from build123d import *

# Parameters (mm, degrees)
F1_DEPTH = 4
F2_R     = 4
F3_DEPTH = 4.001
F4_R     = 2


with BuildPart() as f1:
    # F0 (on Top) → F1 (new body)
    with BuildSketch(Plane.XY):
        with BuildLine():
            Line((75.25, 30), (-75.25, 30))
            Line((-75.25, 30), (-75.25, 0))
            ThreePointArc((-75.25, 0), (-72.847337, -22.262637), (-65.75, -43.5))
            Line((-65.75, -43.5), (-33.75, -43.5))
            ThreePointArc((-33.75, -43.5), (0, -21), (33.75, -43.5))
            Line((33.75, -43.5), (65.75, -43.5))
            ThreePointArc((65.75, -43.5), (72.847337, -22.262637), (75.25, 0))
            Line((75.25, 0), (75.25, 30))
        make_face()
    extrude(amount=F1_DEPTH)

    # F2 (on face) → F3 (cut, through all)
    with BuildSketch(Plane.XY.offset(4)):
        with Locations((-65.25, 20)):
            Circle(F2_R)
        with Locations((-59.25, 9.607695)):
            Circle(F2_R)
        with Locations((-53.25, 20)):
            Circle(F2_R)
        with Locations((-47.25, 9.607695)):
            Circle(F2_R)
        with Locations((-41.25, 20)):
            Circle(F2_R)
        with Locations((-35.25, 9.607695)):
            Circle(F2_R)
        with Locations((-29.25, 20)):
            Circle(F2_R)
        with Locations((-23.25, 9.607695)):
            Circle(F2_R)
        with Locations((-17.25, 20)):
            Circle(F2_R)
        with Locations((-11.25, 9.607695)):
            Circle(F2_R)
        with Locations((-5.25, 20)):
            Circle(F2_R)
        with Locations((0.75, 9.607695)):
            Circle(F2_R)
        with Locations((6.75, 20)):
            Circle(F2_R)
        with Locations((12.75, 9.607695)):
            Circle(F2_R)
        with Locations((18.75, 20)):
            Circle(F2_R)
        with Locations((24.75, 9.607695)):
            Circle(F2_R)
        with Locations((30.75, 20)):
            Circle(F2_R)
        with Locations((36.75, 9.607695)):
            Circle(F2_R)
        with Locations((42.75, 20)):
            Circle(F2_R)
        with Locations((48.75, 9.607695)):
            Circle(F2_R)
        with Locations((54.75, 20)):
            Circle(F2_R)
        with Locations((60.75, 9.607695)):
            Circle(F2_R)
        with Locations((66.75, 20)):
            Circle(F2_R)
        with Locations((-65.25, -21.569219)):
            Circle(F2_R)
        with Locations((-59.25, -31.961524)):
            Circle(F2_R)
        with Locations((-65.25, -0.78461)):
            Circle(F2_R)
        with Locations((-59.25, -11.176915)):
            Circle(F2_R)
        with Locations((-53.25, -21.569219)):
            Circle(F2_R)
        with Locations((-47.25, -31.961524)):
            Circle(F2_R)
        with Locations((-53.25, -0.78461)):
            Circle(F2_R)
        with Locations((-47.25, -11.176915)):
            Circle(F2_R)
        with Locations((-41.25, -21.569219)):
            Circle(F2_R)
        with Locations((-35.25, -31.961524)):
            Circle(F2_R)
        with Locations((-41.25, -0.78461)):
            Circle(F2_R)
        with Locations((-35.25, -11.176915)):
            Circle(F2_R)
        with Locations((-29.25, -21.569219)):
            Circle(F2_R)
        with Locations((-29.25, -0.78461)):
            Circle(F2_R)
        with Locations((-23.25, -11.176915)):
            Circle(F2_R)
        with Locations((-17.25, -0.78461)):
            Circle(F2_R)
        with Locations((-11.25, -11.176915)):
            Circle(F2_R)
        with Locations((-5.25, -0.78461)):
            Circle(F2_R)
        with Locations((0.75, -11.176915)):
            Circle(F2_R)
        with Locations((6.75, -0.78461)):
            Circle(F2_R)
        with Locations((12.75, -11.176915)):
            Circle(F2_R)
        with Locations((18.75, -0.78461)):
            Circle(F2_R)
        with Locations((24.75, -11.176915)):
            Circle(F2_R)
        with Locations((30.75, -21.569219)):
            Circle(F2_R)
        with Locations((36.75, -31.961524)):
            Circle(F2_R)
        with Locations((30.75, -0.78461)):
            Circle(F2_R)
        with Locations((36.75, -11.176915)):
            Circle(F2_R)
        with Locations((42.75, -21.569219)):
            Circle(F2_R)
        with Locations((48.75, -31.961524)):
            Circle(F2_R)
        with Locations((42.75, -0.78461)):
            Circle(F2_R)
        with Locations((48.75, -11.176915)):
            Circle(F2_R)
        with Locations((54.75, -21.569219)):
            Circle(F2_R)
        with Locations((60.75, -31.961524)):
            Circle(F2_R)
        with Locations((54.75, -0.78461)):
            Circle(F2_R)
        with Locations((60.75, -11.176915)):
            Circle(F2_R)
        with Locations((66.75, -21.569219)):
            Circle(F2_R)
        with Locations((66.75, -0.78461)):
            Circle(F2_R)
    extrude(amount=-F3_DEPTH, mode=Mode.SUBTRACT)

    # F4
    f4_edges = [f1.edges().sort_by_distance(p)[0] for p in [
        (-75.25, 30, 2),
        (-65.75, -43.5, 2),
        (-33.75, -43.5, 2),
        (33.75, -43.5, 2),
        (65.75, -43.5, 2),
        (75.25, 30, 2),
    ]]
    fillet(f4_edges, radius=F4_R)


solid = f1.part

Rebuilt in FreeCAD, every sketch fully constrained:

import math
import FreeCAD as App
import Part
import Sketcher

V = App.Vector


def edges_at(feature, points):
    """Names of the edges that pass closest to the given points."""
    edges = feature.Shape.Edges
    near = lambda p: min(range(len(edges)), key=lambda i: edges[i].distToShape(Part.Vertex(*p))[0])
    return sorted({f"Edge{near(p) + 1}" for p in points})

doc = App.newDocument("Part")
body = doc.addObject("PartDesign::Body", "Body")

sketch1 = body.newObject("Sketcher::SketchObject", "Sketch")
sketch1.AttachmentSupport = (doc.getObject("XY_Plane"), [""])
sketch1.MapMode = "FlatFace"
sketch1.addGeometry([
    Part.LineSegment(V(75, 30, 0), V(-75, 30, 0)),
    Part.LineSegment(V(-75, 30, 0), V(-75, 0, 0)),
    Part.ArcOfCircle(Part.Circle(V(29, 0, 0), V(0, 0, 1), 104), math.radians(-180), math.radians(-155)),
    Part.LineSegment(V(-66, -44, 0), V(-34, -44, 0)),
    Part.ArcOfCircle(Part.Circle(V(0, -58, 0), V(0, 0, 1), 37), math.radians(23), math.radians(157)),
    Part.LineSegment(V(34, -44, 0), V(66, -44, 0)),
    Part.ArcOfCircle(Part.Circle(V(-29, 0, 0), V(0, 0, 1), 104), math.radians(-25), math.radians(0)),
    Part.LineSegment(V(75, 0, 0), V(75, 30, 0)),
], False)
sketch1.addConstraint([
    Sketcher.Constraint("Coincident", 0, 2, 1, 1),
    Sketcher.Constraint("Tangent", 1, 2, 2, 1),
    Sketcher.Constraint("Coincident", 2, 2, 3, 1),
    Sketcher.Constraint("Coincident", 3, 2, 4, 2),
    Sketcher.Constraint("Coincident", 4, 1, 5, 1),
    Sketcher.Constraint("Coincident", 5, 2, 6, 1),
    Sketcher.Constraint("Tangent", 6, 2, 7, 1),
    Sketcher.Constraint("Coincident", 7, 2, 0, 1),
    Sketcher.Constraint("Horizontal", 0),
    Sketcher.Constraint("Vertical", 1),
    Sketcher.Constraint("Horizontal", 3),
    Sketcher.Constraint("Horizontal", 5),
    Sketcher.Constraint("Vertical", 7),
    Sketcher.Constraint("Equal", 2, 6),
    Sketcher.Constraint("Symmetric", 2, 3, 6, 3, -1, 1),
    Sketcher.Constraint("Symmetric", 3, 2, 4, 1, -2),
    Sketcher.Constraint("PointOnObject", 2, 3, -1),
    Sketcher.Constraint("DistanceX", 3, 1, 3, 2, 32.0),
    Sketcher.Constraint("DistanceY", 1, 2, 1, 1, 30.0),
    Sketcher.Constraint("DistanceX", 0, 2, 0, 1, 150.5),
    Sketcher.Constraint("DistanceY", 2, 2, -1, 1, 43.5),
    Sketcher.Constraint("Radius", 4, 36.5625),
    Sketcher.Constraint("DistanceX", 1, 2, 3, 2, 41.5),
])
pad1 = body.newObject("PartDesign::Pad", "Pad")
pad1.Profile = sketch1
pad1.Length = 4

sketch2 = body.newObject("Sketcher::SketchObject", "Sketch001")
sketch2.AttachmentSupport = (doc.getObject("XY_Plane"), [""])
sketch2.MapMode = "FlatFace"
sketch2.AttachmentOffset = App.Placement(V(0, 0, 4), App.Rotation())
sketch2.addGeometry([
    Part.Circle(V(-65.2, 20, 0), V(0, 0, 1), 4),
    Part.Circle(V(-59.2, 9.6, 0), V(0, 0, 1), 4),
    Part.Circle(V(-53.2, 20, 0), V(0, 0, 1), 4),
    Part.Circle(V(-47.2, 9.6, 0), V(0, 0, 1), 4),
    Part.Circle(V(-41.2, 20, 0), V(0, 0, 1), 4),
    Part.Circle(V(-35.2, 9.6, 0), V(0, 0, 1), 4),
    Part.Circle(V(-29.2, 20, 0), V(0, 0, 1), 4),
    Part.Circle(V(-23.2, 9.6, 0), V(0, 0, 1), 4),
    Part.Circle(V(-17.2, 20, 0), V(0, 0, 1), 4),
    Part.Circle(V(-11.2, 9.6, 0), V(0, 0, 1), 4),
    Part.Circle(V(-5.2, 20, 0), V(0, 0, 1), 4),
    Part.Circle(V(0.8, 9.6, 0), V(0, 0, 1), 4),
    Part.Circle(V(6.8, 20, 0), V(0, 0, 1), 4),
    Part.Circle(V(12.8, 9.6, 0), V(0, 0, 1), 4),
    Part.Circle(V(18.8, 20, 0), V(0, 0, 1), 4),
    Part.Circle(V(24.8, 9.6, 0), V(0, 0, 1), 4),
    Part.Circle(V(30.8, 20, 0), V(0, 0, 1), 4),
    Part.Circle(V(36.8, 9.6, 0), V(0, 0, 1), 4),
    Part.Circle(V(42.8, 20, 0), V(0, 0, 1), 4),
    Part.Circle(V(48.8, 9.6, 0), V(0, 0, 1), 4),
    Part.Circle(V(54.8, 20, 0), V(0, 0, 1), 4),
    Part.Circle(V(60.8, 9.6, 0), V(0, 0, 1), 4),
    Part.Circle(V(66.8, 20, 0), V(0, 0, 1), 4),
    Part.Circle(V(-65.2, -21.6, 0), V(0, 0, 1), 4),
    Part.Circle(V(-59.2, -32, 0), V(0, 0, 1), 4),
    Part.Circle(V(-65.2, -0.8, 0), V(0, 0, 1), 4),
    Part.Circle(V(-59.2, -11.2, 0), V(0, 0, 1), 4),
    Part.Circle(V(-53.2, -21.6, 0), V(0, 0, 1), 4),
    Part.Circle(V(-47.2, -32, 0), V(0, 0, 1), 4),
    Part.Circle(V(-53.2, -0.8, 0), V(0, 0, 1), 4),
    Part.Circle(V(-47.2, -11.2, 0), V(0, 0, 1), 4),
    Part.Circle(V(-41.2, -21.6, 0), V(0, 0, 1), 4),
    Part.Circle(V(-35.2, -32, 0), V(0, 0, 1), 4),
    Part.Circle(V(-41.2, -0.8, 0), V(0, 0, 1), 4),
    Part.Circle(V(-35.2, -11.2, 0), V(0, 0, 1), 4),
    Part.Circle(V(-29.2, -21.6, 0), V(0, 0, 1), 4),
    Part.Circle(V(-29.2, -0.8, 0), V(0, 0, 1), 4),
    Part.Circle(V(-23.2, -11.2, 0), V(0, 0, 1), 4),
    Part.Circle(V(-17.2, -0.8, 0), V(0, 0, 1), 4),
    Part.Circle(V(-11.2, -11.2, 0), V(0, 0, 1), 4),
    Part.Circle(V(-5.2, -0.8, 0), V(0, 0, 1), 4),
    Part.Circle(V(0.8, -11.2, 0), V(0, 0, 1), 4),
    Part.Circle(V(6.8, -0.8, 0), V(0, 0, 1), 4),
    Part.Circle(V(12.8, -11.2, 0), V(0, 0, 1), 4),
    Part.Circle(V(18.8, -0.8, 0), V(0, 0, 1), 4),
    Part.Circle(V(24.8, -11.2, 0), V(0, 0, 1), 4),
    Part.Circle(V(30.8, -21.6, 0), V(0, 0, 1), 4),
    Part.Circle(V(36.8, -32, 0), V(0, 0, 1), 4),
    Part.Circle(V(30.8, -0.8, 0), V(0, 0, 1), 4),
    Part.Circle(V(36.8, -11.2, 0), V(0, 0, 1), 4),
    Part.Circle(V(42.8, -21.6, 0), V(0, 0, 1), 4),
    Part.Circle(V(48.8, -32, 0), V(0, 0, 1), 4),
    Part.Circle(V(42.8, -0.8, 0), V(0, 0, 1), 4),
    Part.Circle(V(48.8, -11.2, 0), V(0, 0, 1), 4),
    Part.Circle(V(54.8, -21.6, 0), V(0, 0, 1), 4),
    Part.Circle(V(60.8, -32, 0), V(0, 0, 1), 4),
    Part.Circle(V(54.8, -0.8, 0), V(0, 0, 1), 4),
    Part.Circle(V(60.8, -11.2, 0), V(0, 0, 1), 4),
    Part.Circle(V(66.8, -21.6, 0), V(0, 0, 1), 4),
    Part.Circle(V(66.8, -0.8, 0), V(0, 0, 1), 4),
], False)
sketch2.addConstraint([
    Sketcher.Constraint("Equal", 0, 1),
    Sketcher.Constraint("Equal", 1, 2),
    Sketcher.Constraint("Equal", 2, 3),
    Sketcher.Constraint("Equal", 3, 4),
    Sketcher.Constraint("Equal", 4, 5),
    Sketcher.Constraint("Equal", 5, 6),
    Sketcher.Constraint("Equal", 6, 7),
    Sketcher.Constraint("Equal", 7, 8),
    Sketcher.Constraint("Equal", 8, 9),
    Sketcher.Constraint("Equal", 9, 10),
    Sketcher.Constraint("Equal", 10, 11),
    Sketcher.Constraint("Equal", 11, 12),
    Sketcher.Constraint("Equal", 12, 13),
    Sketcher.Constraint("Equal", 13, 14),
    Sketcher.Constraint("Equal", 14, 15),
    Sketcher.Constraint("Equal", 15, 16),
    Sketcher.Constraint("Equal", 16, 17),
    Sketcher.Constraint("Equal", 17, 18),
    Sketcher.Constraint("Equal", 18, 19),
    Sketcher.Constraint("Equal", 19, 20),
    Sketcher.Constraint("Equal", 20, 21),
    Sketcher.Constraint("Equal", 21, 22),
    Sketcher.Constraint("Equal", 22, 23),
    Sketcher.Constraint("Equal", 23, 24),
    Sketcher.Constraint("Equal", 24, 25),
    Sketcher.Constraint("Equal", 25, 26),
    Sketcher.Constraint("Equal", 26, 27),
    Sketcher.Constraint("Equal", 27, 28),
    Sketcher.Constraint("Equal", 28, 29),
    Sketcher.Constraint("Equal", 29, 30),
    Sketcher.Constraint("Equal", 30, 31),
    Sketcher.Constraint("Equal", 31, 32),
    Sketcher.Constraint("Equal", 32, 33),
    Sketcher.Constraint("Equal", 33, 34),
    Sketcher.Constraint("Equal", 34, 35),
    Sketcher.Constraint("Equal", 35, 36),
    Sketcher.Constraint("Equal", 36, 37),
    Sketcher.Constraint("Equal", 37, 38),
    Sketcher.Constraint("Equal", 38, 39),
    Sketcher.Constraint("Equal", 39, 40),
    Sketcher.Constraint("Equal", 40, 41),
    Sketcher.Constraint("Equal", 41, 42),
    Sketcher.Constraint("Equal", 42, 43),
    Sketcher.Constraint("Equal", 43, 44),
    Sketcher.Constraint("Equal", 44, 45),
    Sketcher.Constraint("Equal", 45, 46),
    Sketcher.Constraint("Equal", 46, 47),
    Sketcher.Constraint("Equal", 47, 48),
    Sketcher.Constraint("Equal", 48, 49),
    Sketcher.Constraint("Equal", 49, 50),
    Sketcher.Constraint("Equal", 50, 51),
    Sketcher.Constraint("Equal", 51, 52),
    Sketcher.Constraint("Equal", 52, 53),
    Sketcher.Constraint("Equal", 53, 54),
    Sketcher.Constraint("Equal", 54, 55),
    Sketcher.Constraint("Equal", 55, 56),
    Sketcher.Constraint("Equal", 56, 57),
    Sketcher.Constraint("Equal", 57, 58),
    Sketcher.Constraint("Equal", 58, 59),
    Sketcher.Constraint("Horizontal", 0, 3, 2, 3),
    Sketcher.Constraint("Horizontal", 1, 3, 3, 3),
    Sketcher.Constraint("Horizontal", 2, 3, 4, 3),
    Sketcher.Constraint("Horizontal", 3, 3, 5, 3),
    Sketcher.Constraint("Horizontal", 4, 3, 6, 3),
    Sketcher.Constraint("Horizontal", 5, 3, 7, 3),
    Sketcher.Constraint("Horizontal", 6, 3, 8, 3),
    Sketcher.Constraint("Horizontal", 7, 3, 9, 3),
    Sketcher.Constraint("Horizontal", 8, 3, 10, 3),
    Sketcher.Constraint("Horizontal", 9, 3, 11, 3),
    Sketcher.Constraint("Horizontal", 10, 3, 12, 3),
    Sketcher.Constraint("Horizontal", 11, 3, 13, 3),
    Sketcher.Constraint("Horizontal", 12, 3, 14, 3),
    Sketcher.Constraint("Horizontal", 13, 3, 15, 3),
    Sketcher.Constraint("Horizontal", 14, 3, 16, 3),
    Sketcher.Constraint("Horizontal", 15, 3, 17, 3),
    Sketcher.Constraint("Horizontal", 16, 3, 18, 3),
    Sketcher.Constraint("Horizontal", 17, 3, 19, 3),
    Sketcher.Constraint("Horizontal", 18, 3, 20, 3),
    Sketcher.Constraint("Horizontal", 19, 3, 21, 3),
    Sketcher.Constraint("Horizontal", 20, 3, 22, 3),
    Sketcher.Constraint("Horizontal", 23, 3, 27, 3),
    Sketcher.Constraint("Horizontal", 24, 3, 28, 3),
    Sketcher.Constraint("Horizontal", 25, 3, 29, 3),
    Sketcher.Constraint("Horizontal", 26, 3, 30, 3),
    Sketcher.Constraint("Horizontal", 27, 3, 31, 3),
    Sketcher.Constraint("Horizontal", 28, 3, 32, 3),
    Sketcher.Constraint("Horizontal", 29, 3, 33, 3),
    Sketcher.Constraint("Horizontal", 30, 3, 34, 3),
    Sketcher.Constraint("Horizontal", 31, 3, 35, 3),
    Sketcher.Constraint("Horizontal", 33, 3, 36, 3),
    Sketcher.Constraint("Horizontal", 34, 3, 37, 3),
    Sketcher.Constraint("Horizontal", 36, 3, 38, 3),
    Sketcher.Constraint("Horizontal", 37, 3, 39, 3),
    Sketcher.Constraint("Horizontal", 38, 3, 40, 3),
    Sketcher.Constraint("Horizontal", 39, 3, 41, 3),
    Sketcher.Constraint("Horizontal", 40, 3, 42, 3),
    Sketcher.Constraint("Horizontal", 41, 3, 43, 3),
    Sketcher.Constraint("Horizontal", 42, 3, 44, 3),
    Sketcher.Constraint("Horizontal", 43, 3, 45, 3),
    Sketcher.Constraint("Horizontal", 35, 3, 46, 3),
    Sketcher.Constraint("Horizontal", 32, 3, 47, 3),
    Sketcher.Constraint("Horizontal", 44, 3, 48, 3),
    Sketcher.Constraint("Horizontal", 45, 3, 49, 3),
    Sketcher.Constraint("Horizontal", 46, 3, 50, 3),
    Sketcher.Constraint("Horizontal", 47, 3, 51, 3),
    Sketcher.Constraint("Horizontal", 48, 3, 52, 3),
    Sketcher.Constraint("Horizontal", 49, 3, 53, 3),
    Sketcher.Constraint("Horizontal", 50, 3, 54, 3),
    Sketcher.Constraint("Horizontal", 51, 3, 55, 3),
    Sketcher.Constraint("Horizontal", 52, 3, 56, 3),
    Sketcher.Constraint("Horizontal", 53, 3, 57, 3),
    Sketcher.Constraint("Horizontal", 54, 3, 58, 3),
    Sketcher.Constraint("Horizontal", 56, 3, 59, 3),
    Sketcher.Constraint("Vertical", 0, 3, 23, 3),
    Sketcher.Constraint("Vertical", 1, 3, 24, 3),
    Sketcher.Constraint("Vertical", 23, 3, 25, 3),
    Sketcher.Constraint("Vertical", 24, 3, 26, 3),
    Sketcher.Constraint("Vertical", 2, 3, 27, 3),
    Sketcher.Constraint("Vertical", 3, 3, 28, 3),
    Sketcher.Constraint("Vertical", 27, 3, 29, 3),
    Sketcher.Constraint("Vertical", 28, 3, 30, 3),
    Sketcher.Constraint("Vertical", 4, 3, 31, 3),
    Sketcher.Constraint("Vertical", 5, 3, 32, 3),
    Sketcher.Constraint("Vertical", 31, 3, 33, 3),
    Sketcher.Constraint("Vertical", 32, 3, 34, 3),
    Sketcher.Constraint("Vertical", 6, 3, 35, 3),
    Sketcher.Constraint("Vertical", 35, 3, 36, 3),
    Sketcher.Constraint("Vertical", 7, 3, 37, 3),
    Sketcher.Constraint("Vertical", 8, 3, 38, 3),
    Sketcher.Constraint("Vertical", 9, 3, 39, 3),
    Sketcher.Constraint("Vertical", 10, 3, 40, 3),
    Sketcher.Constraint("Vertical", 11, 3, 41, 3),
    Sketcher.Constraint("Vertical", 12, 3, 42, 3),
    Sketcher.Constraint("Vertical", 13, 3, 43, 3),
    Sketcher.Constraint("Vertical", 14, 3, 44, 3),
    Sketcher.Constraint("Vertical", 15, 3, 45, 3),
    Sketcher.Constraint("Vertical", 16, 3, 46, 3),
    Sketcher.Constraint("Vertical", 17, 3, 47, 3),
    Sketcher.Constraint("Vertical", 46, 3, 48, 3),
    Sketcher.Constraint("Vertical", 47, 3, 49, 3),
    Sketcher.Constraint("Vertical", 18, 3, 50, 3),
    Sketcher.Constraint("Vertical", 19, 3, 51, 3),
    Sketcher.Constraint("Vertical", 50, 3, 52, 3),
    Sketcher.Constraint("Vertical", 51, 3, 53, 3),
    Sketcher.Constraint("Vertical", 20, 3, 54, 3),
    Sketcher.Constraint("Vertical", 21, 3, 55, 3),
    Sketcher.Constraint("Vertical", 54, 3, 56, 3),
    Sketcher.Constraint("Vertical", 55, 3, 57, 3),
    Sketcher.Constraint("Vertical", 22, 3, 58, 3),
    Sketcher.Constraint("Vertical", 58, 3, 59, 3),
    Sketcher.Constraint("Diameter", 0, 8.0),
    Sketcher.Constraint("DistanceY", -1, 1, 0, 3, 20.0),
    Sketcher.Constraint("DistanceX", 0, 3, 1, 3, 6.0),
    Sketcher.Constraint("DistanceX", 0, 3, 2, 3, 12.0),
    Sketcher.Constraint("DistanceX", 1, 3, 3, 3, 12.0),
    Sketcher.Constraint("DistanceX", 2, 3, 4, 3, 12.0),
    Sketcher.Constraint("DistanceX", 3, 3, 5, 3, 12.0),
    Sketcher.Constraint("DistanceX", 4, 3, 6, 3, 12.0),
    Sketcher.Constraint("DistanceX", 5, 3, 7, 3, 12.0),
    Sketcher.Constraint("DistanceX", 6, 3, 8, 3, 12.0),
    Sketcher.Constraint("DistanceX", 7, 3, 9, 3, 12.0),
    Sketcher.Constraint("DistanceX", 8, 3, 10, 3, 12.0),
    Sketcher.Constraint("DistanceX", 9, 3, 11, 3, 12.0),
    Sketcher.Constraint("DistanceX", 10, 3, 12, 3, 12.0),
    Sketcher.Constraint("DistanceX", 11, 3, 13, 3, 12.0),
    Sketcher.Constraint("DistanceX", 12, 3, 14, 3, 12.0),
    Sketcher.Constraint("DistanceX", 13, 3, 15, 3, 12.0),
    Sketcher.Constraint("DistanceX", 14, 3, 16, 3, 12.0),
    Sketcher.Constraint("DistanceX", 15, 3, 17, 3, 12.0),
    Sketcher.Constraint("DistanceX", 16, 3, 18, 3, 12.0),
    Sketcher.Constraint("DistanceX", 17, 3, 19, 3, 12.0),
    Sketcher.Constraint("DistanceX", 18, 3, 20, 3, 12.0),
    Sketcher.Constraint("DistanceX", 19, 3, 21, 3, 12.0),
    Sketcher.Constraint("DistanceX", 20, 3, 22, 3, 12.0),
    Sketcher.Constraint("DistanceX", 0, 3, -1, 1, 65.25),
    Sketcher.Constraint("DistanceY", 23, 3, -1, 1, 21.569219),
    Sketcher.Constraint("DistanceY", 25, 3, -1, 1, 0.78461),
    Sketcher.Constraint("DistanceY", 24, 3, 1, 3, 41.569219),
    Sketcher.Constraint("DistanceY", 24, 3, 26, 3, 20.784609),
    Sketcher.Constraint("DistanceY", -1, 1, 1, 3, 9.607695),
])
pocket1 = body.newObject("PartDesign::Pocket", "Pocket")
pocket1.Profile = sketch2
pocket1.Type = "ThroughAll"
doc.recompute()

fillet = body.newObject("PartDesign::Fillet", "Fillet")
fillet.Base = (pocket1, edges_at(pocket1, [
    (-75.25, 30, 2),
    (-65.75, -43.5, 2),
    (-33.75, -43.5, 2),
    (33.75, -43.5, 2),
    (65.75, -43.5, 2),
    (75.25, 30, 2),
]))
fillet.Radius = 2

doc.recompute()
